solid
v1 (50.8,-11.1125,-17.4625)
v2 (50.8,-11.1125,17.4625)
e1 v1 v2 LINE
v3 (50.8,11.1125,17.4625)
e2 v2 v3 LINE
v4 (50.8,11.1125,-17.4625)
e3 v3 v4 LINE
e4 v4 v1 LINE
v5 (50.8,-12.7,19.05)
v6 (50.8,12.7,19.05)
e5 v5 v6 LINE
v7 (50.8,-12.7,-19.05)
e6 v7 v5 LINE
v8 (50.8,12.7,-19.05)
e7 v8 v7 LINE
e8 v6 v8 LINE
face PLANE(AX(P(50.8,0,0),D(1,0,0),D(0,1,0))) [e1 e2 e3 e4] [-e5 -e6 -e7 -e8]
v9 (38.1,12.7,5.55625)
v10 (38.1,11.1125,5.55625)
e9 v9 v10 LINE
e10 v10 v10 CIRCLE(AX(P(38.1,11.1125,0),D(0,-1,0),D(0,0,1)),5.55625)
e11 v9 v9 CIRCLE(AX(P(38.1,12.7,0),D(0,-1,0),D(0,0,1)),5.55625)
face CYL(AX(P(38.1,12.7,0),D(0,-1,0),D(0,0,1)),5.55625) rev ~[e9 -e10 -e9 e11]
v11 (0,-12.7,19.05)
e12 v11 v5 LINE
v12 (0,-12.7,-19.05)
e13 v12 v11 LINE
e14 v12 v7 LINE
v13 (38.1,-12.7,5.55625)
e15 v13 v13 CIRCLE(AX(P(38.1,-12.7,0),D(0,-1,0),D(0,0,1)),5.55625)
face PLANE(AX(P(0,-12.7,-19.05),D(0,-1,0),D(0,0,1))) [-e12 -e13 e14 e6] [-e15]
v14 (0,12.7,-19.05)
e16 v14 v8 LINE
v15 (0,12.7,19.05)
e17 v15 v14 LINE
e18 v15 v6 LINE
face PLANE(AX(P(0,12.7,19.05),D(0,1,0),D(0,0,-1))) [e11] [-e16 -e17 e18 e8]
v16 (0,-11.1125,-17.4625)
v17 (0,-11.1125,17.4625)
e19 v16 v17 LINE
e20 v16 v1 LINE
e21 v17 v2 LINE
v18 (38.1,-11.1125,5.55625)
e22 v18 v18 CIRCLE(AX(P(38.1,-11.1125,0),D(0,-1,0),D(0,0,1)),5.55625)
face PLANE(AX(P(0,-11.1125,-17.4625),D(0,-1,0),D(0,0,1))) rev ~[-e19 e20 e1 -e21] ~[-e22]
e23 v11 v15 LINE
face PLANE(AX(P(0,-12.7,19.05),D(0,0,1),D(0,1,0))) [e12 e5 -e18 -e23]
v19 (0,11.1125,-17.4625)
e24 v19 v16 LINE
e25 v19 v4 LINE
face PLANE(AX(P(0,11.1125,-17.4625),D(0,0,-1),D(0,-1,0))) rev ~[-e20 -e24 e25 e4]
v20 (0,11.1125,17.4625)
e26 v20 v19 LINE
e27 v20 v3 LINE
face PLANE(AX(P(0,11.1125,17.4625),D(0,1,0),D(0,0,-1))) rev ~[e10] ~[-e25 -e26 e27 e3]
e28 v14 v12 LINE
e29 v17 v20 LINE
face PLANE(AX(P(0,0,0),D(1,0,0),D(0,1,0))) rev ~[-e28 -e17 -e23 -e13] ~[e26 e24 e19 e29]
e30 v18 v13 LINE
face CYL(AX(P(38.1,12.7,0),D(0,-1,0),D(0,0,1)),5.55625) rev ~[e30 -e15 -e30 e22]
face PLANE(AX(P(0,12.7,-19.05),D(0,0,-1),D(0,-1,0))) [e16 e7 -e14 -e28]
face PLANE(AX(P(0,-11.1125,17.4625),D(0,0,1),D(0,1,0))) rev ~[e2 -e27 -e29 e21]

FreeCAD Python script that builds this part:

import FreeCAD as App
import Part
import Sketcher

V = App.Vector
Q = App.Units.Quantity


def add_polygon(sketch, points):
    """Adds a closed chain of lines whose ends are joined by coincident constraints."""
    first, n = sketch.GeometryCount, len(points)
    for a, b in zip(points, points[1:] + points[:1]):
        sketch.addGeometry(Part.LineSegment(App.Vector(*a, 0), App.Vector(*b, 0)), False)
    for i in range(n):
        sketch.addConstraint(Sketcher.Constraint("Coincident", first + i, 2, first + (i + 1) % n, 1))

doc = App.newDocument("Part")
params = doc.addObject("Spreadsheet::Sheet", "Params")
for row, (alias, value) in enumerate([
    ("sketch1_width", "1 in"),
    ("sketch1_height", "1.5 in"),
    ("pad1_length", "2 in"),
    ("sketch2_diameter", "0.4375 in"),
    ("hole_diameter", "0.4375 in"),
], start=1):
    params.set(f"A{row}", alias)
    params.set(f"B{row}", "=" + value)
    params.setAlias(f"B{row}", alias)

body = doc.addObject("PartDesign::Body", "Body")

sketch1 = body.newObject("Sketcher::SketchObject", "Sketch")
sketch1.AttachmentSupport = (doc.getObject("YZ_Plane"), [""])
sketch1.MapMode = "FlatFace"
add_polygon(sketch1, [(13, 19), (-13, 19), (-13, -19), (13, -19)])
add_polygon(sketch1, [(-11, -17), (-11, 17), (11, 17), (11, -17)])
sketch1.addConstraint([
    Sketcher.Constraint("Horizontal", 0),
    Sketcher.Constraint("Vertical", 1),
    Sketcher.Constraint("Horizontal", 2),
    Sketcher.Constraint("Vertical", 3),
    Sketcher.Constraint("Vertical", 4),
    Sketcher.Constraint("Horizontal", 5),
    Sketcher.Constraint("Vertical", 6),
    Sketcher.Constraint("Horizontal", 7),
    Sketcher.Constraint("Symmetric", 0, 2, 2, 2, -1, 1),
    Sketcher.Constraint("Symmetric", 4, 2, 6, 2, -1, 1),
    Sketcher.Constraint("DistanceX", 0, 2, 0, 1, Q("1 in")),
    Sketcher.Constraint("DistanceY", 1, 2, 1, 1, Q("1.5 in")),
    Sketcher.Constraint("DistanceX", 0, 2, 4, 2, Q("0.0625 in")),
    Sketcher.Constraint("DistanceY", 4, 2, 0, 2, Q("0.0625 in")),
])
sketch1.setExpression("Constraints[18]", "Params.sketch1_width")
sketch1.setExpression("Constraints[19]", "Params.sketch1_height")
pad1 = body.newObject("PartDesign::Pad", "Pad")
pad1.Profile = sketch1
pad1.setExpression("Length", "Params.pad1_length")

sketch2 = body.newObject("Sketcher::SketchObject", "Sketch001")
sketch2.AttachmentSupport = (doc.getObject("XZ_Plane"), [""])
sketch2.MapMode = "FlatFace"
sketch2.AttachmentOffset = App.Placement(V(0, 0, -0.5 * 25.4), App.Rotation())
sketch2.addGeometry(Part.Circle(V(38, 0, 0), V(0, 0, 1), 6), False)
sketch2.addConstraint([
    Sketcher.Constraint("PointOnObject", 0, 3, -1),
    Sketcher.Constraint("Diameter", 0, Q("0.4375 in")),
    Sketcher.Constraint("DistanceX", -1, 1, 0, 3, Q("1.5 in")),
])
sketch2.setExpression("Constraints[1]", "Params.sketch2_diameter")
doc.recompute()
hole = body.newObject("PartDesign::Hole", "Hole")
hole.Profile = sketch2
hole.ThreadType = "None"
hole.setExpression("Diameter", "Params.hole_diameter")
hole.DepthType = "ThroughAll"
hole.Reversed = True

doc.recompute()
